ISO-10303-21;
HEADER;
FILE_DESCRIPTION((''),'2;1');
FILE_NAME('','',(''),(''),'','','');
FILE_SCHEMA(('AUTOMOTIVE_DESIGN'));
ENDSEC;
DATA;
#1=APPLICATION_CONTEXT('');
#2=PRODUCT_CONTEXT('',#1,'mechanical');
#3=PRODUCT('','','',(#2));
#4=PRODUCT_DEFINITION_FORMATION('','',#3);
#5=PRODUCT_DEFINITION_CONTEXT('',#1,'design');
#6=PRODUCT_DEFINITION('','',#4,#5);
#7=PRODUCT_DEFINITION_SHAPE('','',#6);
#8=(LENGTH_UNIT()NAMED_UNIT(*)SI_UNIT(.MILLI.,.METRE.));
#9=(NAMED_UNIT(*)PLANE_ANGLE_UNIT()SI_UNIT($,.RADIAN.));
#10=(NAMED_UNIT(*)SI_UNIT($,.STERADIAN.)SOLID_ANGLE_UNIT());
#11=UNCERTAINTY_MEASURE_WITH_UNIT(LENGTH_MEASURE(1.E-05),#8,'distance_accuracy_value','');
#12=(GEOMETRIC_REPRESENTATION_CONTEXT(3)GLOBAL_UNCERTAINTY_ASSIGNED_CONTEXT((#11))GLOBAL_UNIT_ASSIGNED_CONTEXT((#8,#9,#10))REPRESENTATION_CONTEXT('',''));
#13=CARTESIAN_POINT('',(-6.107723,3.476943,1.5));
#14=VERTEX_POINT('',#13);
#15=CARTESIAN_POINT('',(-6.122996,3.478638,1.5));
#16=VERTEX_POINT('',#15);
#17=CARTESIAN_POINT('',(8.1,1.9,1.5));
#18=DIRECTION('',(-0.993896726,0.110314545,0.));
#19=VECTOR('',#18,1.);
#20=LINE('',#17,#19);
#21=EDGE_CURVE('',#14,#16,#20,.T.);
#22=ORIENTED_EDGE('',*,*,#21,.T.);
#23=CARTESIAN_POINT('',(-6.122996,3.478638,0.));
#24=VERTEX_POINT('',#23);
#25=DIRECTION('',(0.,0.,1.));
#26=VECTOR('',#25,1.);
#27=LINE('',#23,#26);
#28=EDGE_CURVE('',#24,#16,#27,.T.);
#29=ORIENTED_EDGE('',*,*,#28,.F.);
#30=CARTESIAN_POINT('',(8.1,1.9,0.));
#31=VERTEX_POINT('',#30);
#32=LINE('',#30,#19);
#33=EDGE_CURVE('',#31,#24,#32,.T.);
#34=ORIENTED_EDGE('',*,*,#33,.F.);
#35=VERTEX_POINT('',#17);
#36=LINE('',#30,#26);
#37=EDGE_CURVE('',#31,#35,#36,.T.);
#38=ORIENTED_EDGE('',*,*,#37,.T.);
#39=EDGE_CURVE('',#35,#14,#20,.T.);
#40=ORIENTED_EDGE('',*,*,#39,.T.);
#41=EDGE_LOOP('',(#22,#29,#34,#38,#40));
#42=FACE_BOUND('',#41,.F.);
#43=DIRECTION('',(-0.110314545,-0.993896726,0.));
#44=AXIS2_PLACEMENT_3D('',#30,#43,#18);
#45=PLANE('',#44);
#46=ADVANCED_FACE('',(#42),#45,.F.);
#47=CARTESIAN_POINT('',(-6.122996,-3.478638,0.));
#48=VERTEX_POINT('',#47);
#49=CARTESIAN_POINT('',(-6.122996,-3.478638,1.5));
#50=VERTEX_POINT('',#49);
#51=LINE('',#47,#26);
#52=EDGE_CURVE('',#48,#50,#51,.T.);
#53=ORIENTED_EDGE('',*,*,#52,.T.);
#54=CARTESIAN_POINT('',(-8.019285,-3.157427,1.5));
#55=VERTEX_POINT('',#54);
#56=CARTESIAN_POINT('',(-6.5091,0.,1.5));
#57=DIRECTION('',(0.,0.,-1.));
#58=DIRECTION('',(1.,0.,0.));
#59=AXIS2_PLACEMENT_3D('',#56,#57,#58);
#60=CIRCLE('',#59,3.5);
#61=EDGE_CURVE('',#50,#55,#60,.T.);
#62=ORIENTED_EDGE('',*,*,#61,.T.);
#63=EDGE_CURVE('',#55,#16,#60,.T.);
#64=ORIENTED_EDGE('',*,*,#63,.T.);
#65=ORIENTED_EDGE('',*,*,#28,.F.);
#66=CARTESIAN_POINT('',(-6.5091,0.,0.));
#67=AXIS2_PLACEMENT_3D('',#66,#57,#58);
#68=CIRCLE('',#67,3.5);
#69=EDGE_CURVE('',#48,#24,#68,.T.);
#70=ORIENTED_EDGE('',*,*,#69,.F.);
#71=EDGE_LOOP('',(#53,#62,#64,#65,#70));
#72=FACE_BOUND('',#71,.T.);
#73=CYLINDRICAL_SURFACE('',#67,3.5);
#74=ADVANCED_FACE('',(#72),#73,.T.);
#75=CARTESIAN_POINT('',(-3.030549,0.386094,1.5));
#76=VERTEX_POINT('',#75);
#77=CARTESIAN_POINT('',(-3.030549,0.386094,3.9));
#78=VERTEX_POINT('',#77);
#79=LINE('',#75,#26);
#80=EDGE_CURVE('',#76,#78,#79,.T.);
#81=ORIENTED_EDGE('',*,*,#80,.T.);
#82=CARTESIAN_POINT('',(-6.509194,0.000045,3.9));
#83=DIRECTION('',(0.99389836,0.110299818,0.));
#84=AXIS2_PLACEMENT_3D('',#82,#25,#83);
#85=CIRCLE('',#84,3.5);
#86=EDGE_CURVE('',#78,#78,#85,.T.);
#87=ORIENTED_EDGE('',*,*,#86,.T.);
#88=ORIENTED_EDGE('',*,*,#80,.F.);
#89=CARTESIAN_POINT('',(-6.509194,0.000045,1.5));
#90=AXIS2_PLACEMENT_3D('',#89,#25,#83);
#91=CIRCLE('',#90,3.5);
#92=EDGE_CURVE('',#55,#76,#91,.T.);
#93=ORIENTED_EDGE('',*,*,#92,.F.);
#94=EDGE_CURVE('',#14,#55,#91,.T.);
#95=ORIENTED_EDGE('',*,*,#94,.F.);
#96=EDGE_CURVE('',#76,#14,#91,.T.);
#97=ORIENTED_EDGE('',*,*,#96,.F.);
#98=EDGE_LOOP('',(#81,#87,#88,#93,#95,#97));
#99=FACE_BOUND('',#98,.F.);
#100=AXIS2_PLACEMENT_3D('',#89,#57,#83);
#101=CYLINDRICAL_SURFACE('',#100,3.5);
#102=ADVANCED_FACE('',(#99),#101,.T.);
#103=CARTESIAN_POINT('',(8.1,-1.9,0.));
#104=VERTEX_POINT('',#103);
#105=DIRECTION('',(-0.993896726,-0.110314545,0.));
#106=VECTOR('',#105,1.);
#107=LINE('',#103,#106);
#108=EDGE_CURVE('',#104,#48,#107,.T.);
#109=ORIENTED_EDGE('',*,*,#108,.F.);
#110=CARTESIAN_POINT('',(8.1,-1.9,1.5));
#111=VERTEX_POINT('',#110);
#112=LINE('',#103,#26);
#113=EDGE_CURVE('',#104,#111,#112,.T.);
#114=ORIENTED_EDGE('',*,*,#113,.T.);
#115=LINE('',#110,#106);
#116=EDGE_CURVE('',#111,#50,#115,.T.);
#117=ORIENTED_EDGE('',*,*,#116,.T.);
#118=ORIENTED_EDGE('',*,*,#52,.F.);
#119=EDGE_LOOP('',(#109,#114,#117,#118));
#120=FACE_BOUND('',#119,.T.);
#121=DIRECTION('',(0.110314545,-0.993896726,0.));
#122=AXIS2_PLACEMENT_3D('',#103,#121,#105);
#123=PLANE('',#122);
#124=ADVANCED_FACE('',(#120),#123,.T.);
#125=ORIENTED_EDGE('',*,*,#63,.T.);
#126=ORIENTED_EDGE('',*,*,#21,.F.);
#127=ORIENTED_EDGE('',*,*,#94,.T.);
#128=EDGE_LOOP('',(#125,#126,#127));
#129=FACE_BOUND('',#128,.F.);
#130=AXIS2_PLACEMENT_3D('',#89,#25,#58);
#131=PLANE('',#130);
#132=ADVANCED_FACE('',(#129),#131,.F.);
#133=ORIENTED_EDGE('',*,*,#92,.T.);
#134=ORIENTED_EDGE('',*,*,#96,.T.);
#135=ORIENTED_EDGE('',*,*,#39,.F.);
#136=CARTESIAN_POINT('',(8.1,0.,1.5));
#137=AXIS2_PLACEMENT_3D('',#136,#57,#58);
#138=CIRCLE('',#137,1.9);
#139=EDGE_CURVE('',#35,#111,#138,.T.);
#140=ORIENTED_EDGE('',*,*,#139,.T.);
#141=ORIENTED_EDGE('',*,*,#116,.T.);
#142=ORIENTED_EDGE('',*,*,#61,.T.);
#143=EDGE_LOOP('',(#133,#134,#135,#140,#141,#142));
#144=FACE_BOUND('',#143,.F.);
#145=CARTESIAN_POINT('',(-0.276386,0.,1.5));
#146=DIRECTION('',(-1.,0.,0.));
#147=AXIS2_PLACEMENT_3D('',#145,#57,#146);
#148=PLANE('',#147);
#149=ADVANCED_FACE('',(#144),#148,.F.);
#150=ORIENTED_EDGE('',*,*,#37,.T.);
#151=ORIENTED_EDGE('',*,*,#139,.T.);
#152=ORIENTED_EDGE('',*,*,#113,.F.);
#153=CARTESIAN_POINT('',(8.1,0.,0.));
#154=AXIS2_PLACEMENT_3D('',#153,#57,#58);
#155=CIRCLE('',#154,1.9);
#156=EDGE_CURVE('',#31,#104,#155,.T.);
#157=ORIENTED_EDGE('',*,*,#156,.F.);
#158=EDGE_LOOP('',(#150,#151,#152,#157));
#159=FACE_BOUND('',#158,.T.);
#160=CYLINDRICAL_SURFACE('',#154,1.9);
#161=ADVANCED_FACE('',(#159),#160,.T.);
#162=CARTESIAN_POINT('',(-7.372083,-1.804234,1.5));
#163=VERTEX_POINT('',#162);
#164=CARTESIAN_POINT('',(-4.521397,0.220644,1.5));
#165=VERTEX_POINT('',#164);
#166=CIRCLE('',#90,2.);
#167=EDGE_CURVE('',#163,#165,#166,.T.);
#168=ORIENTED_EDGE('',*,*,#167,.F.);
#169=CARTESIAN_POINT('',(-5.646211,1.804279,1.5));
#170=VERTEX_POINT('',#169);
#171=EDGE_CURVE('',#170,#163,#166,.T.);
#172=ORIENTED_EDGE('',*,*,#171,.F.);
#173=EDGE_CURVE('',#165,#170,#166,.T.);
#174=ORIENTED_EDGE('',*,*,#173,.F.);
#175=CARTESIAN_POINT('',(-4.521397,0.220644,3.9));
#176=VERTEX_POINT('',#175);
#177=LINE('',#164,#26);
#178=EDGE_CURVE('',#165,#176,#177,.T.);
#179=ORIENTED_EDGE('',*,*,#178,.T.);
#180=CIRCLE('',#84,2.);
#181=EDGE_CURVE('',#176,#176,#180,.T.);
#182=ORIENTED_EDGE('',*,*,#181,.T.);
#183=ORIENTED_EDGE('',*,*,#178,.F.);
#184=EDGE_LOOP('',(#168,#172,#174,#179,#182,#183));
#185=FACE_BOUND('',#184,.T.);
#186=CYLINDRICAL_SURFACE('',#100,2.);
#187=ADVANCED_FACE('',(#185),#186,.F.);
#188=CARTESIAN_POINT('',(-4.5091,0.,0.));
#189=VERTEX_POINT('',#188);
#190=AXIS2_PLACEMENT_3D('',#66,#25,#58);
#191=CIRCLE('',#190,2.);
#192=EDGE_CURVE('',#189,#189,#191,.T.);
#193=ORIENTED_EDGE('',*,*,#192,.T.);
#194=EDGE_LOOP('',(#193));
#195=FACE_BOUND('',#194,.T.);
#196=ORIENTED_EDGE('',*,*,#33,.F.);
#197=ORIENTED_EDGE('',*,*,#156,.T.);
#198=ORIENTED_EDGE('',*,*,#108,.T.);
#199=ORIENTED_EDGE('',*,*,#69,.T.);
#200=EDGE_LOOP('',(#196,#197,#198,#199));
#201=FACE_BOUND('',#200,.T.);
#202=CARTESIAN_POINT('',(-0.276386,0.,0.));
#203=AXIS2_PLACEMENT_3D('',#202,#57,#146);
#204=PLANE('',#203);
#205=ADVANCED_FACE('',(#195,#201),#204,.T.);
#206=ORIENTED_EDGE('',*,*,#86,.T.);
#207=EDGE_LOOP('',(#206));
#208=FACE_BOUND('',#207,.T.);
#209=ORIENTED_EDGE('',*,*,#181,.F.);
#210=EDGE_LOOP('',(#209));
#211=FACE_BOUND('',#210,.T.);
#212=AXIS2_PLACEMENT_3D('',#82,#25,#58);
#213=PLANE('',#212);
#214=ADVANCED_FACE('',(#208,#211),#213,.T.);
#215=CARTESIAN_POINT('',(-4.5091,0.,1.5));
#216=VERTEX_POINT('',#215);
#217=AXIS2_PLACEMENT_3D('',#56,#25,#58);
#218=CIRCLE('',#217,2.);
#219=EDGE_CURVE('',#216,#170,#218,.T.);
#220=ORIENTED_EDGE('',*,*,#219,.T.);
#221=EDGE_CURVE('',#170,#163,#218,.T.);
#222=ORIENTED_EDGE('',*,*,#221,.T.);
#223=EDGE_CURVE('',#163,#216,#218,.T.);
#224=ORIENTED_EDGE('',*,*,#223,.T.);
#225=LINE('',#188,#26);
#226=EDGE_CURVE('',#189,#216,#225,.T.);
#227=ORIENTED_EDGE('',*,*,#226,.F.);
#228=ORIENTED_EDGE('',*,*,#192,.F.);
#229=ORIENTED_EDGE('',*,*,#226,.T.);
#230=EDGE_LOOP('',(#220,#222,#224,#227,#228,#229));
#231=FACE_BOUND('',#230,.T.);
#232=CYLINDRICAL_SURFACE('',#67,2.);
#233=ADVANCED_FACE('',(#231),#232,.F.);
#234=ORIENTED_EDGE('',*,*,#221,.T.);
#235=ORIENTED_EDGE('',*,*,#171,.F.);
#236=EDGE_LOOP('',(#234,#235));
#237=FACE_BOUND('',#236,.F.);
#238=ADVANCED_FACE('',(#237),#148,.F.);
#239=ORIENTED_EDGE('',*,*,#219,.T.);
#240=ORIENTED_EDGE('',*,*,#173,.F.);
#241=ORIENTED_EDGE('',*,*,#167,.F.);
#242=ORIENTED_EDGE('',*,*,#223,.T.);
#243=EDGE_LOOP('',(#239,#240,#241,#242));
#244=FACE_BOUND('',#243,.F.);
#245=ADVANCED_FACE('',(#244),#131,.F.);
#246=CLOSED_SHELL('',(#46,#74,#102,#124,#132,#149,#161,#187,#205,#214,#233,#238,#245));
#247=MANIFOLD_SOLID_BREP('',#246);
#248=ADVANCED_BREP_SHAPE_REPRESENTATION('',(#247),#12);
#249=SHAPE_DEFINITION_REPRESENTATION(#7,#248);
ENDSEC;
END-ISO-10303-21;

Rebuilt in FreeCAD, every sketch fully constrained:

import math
import FreeCAD as App
import Part
import Sketcher

V = App.Vector
Q = App.Units.Quantity

doc = App.newDocument("Part")
body = doc.addObject("PartDesign::Body", "Body")

# Sketch on XY plane
sketch1 = body.newObject("Sketcher::SketchObject", "Sketch")
sketch1.AttachmentSupport = (doc.getObject("XY_Plane"), [""])
sketch1.MapMode = "FlatFace"
sketch1.addGeometry([
    Part.LineSegment(V(-6.123, -3.4786, 0), V(8.1, -1.9, 0)),  # 0
    Part.ArcOfCircle(Part.Circle(V(8.1, 0, 0), V(0, 0, 1), 1.9), math.radians(-90), math.radians(90)),  # 1
    Part.LineSegment(V(8.1, 1.9, 0), V(-6.123, 3.4786, 0)),  # 2
    Part.ArcOfCircle(Part.Circle(V(-6.5091, 0, 0), V(0, 0, 1), 3.499962), math.radians(83.666497), math.radians(276.333503)),  # 3
    Part.Circle(V(-6.5091, 0, 0), V(0, 0, 1), 2),  # 4
], False)
sketch1.addConstraint([
    Sketcher.Constraint("Coincident", 0, 2, 1, 1),
    Sketcher.Constraint("Coincident", 1, 2, 2, 1),
    Sketcher.Constraint("Tangent", 2, 2, 3, 1),
    Sketcher.Constraint("Tangent", 3, 2, 0, 1),
    Sketcher.Constraint("Coincident", 4, 3, 3, 3),
    Sketcher.Constraint("Symmetric", 0, 2, 1, 2, -1),
    Sketcher.Constraint("PointOnObject", 3, 3, -1),
    Sketcher.Constraint("Vertical", 1, 3, 0, 2),
    Sketcher.Constraint("Diameter", 4, Q("4 mm")),
    Sketcher.Constraint("Radius", 1, Q("1.9 mm")),
    Sketcher.Constraint("Radius", 3, Q("3.5 mm")),
    Sketcher.Constraint("DistanceX", -1, 1, 1, 3, Q("8.1 mm")),
    Sketcher.Constraint("DistanceX", 3, 3, -1, 1, Q("6.509 mm")),
])
pad1 = body.newObject("PartDesign::Pad", "Pad")
pad1.Profile = sketch1
pad1.Length = 1.5

# Sketch on XY plane
sketch2 = body.newObject("Sketcher::SketchObject", "Sketch001")
sketch2.AttachmentSupport = (doc.getObject("XY_Plane"), [""])
sketch2.MapMode = "FlatFace"
sketch2.AttachmentOffset = App.Placement(V(0, 0, 1.5), App.Rotation())
sketch2.addGeometry([
    Part.Circle(V(-6.509194, 0.000045, 0), V(0, 0, 1), 3.5),
    Part.Circle(V(-6.509194, 0.000045, 0), V(0, 0, 1), 2),
], False)
sketch2.addConstraint([
    Sketcher.Constraint("Coincident", 1, 3, 0, 3),
    Sketcher.Constraint("PointOnObject", 0, 3, -1),
    Sketcher.Constraint("Diameter", 0, Q("7 mm")),
    Sketcher.Constraint("Diameter", 1, Q("4 mm")),
    Sketcher.Constraint("DistanceX", 0, 3, -1, 1, Q("6.5092 mm")),
])
pad2 = body.newObject("PartDesign::Pad", "Pad001")
pad2.Profile = sketch2
pad2.Length = 2.4

doc.recompute()
